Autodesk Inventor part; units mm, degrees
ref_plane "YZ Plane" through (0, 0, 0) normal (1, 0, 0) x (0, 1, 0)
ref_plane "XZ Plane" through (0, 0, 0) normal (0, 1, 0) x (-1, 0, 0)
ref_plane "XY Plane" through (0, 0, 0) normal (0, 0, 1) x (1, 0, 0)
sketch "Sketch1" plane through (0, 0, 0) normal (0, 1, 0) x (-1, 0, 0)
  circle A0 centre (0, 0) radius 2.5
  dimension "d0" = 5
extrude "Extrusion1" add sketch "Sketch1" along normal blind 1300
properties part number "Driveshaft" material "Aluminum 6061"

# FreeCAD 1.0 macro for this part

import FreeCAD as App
import Part
import Sketcher
from FreeCAD import Vector
Q = App.Units.Quantity

doc = App.newDocument("Part")
params = doc.addObject("Spreadsheet::Sheet", "Params")
for row, (alias, value) in enumerate([
    ("sketch1_diameter", "5 mm"),
    ("pad1_length", "1300 mm"),
], start=1):
    params.set(f"A{row}", alias)
    params.set(f"B{row}", "=" + value)
    params.setAlias(f"B{row}", alias)

body = doc.addObject("PartDesign::Body", "Body")

# Sketch on XZ plane
sketch1 = body.newObject("Sketcher::SketchObject", "Sketch")
sketch1.AttachmentSupport = (doc.getObject("XZ_Plane"), [""])
sketch1.MapMode = "FlatFace"
sketch1.addGeometry(Part.Circle(Vector(0, 0, 0), Vector(0, 0, 1), 2.5), False)
sketch1.addConstraint([
    Sketcher.Constraint("Coincident", 0, 3, -1, 1),
    Sketcher.Constraint("Diameter", 0, Q("5 mm")),
])
sketch1.setExpression("Constraints[1]", "Params.sketch1_diameter")
pad1 = body.newObject("PartDesign::Pad", "Pad")
pad1.Profile = sketch1
pad1.setExpression("Length", "Params.pad1_length")
pad1.Reversed = True

doc.recompute()
